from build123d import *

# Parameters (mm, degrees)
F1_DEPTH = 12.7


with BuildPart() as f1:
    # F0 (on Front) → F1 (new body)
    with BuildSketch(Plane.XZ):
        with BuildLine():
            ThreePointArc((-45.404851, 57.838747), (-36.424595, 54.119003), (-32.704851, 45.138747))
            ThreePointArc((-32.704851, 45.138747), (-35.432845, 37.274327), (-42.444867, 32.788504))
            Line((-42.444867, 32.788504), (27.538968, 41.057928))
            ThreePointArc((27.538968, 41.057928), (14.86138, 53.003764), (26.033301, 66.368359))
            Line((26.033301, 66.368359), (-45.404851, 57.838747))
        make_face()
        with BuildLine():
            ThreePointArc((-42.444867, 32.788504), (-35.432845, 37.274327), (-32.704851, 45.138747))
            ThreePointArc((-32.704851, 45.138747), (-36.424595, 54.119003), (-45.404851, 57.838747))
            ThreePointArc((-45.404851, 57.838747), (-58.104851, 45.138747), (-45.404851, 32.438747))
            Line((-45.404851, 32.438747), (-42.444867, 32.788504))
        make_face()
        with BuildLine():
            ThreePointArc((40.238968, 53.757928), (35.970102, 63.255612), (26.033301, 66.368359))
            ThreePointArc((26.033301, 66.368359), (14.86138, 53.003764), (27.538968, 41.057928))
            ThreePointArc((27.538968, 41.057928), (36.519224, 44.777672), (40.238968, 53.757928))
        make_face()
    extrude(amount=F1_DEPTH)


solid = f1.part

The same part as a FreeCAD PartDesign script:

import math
import FreeCAD as App
import Part
import Sketcher
from FreeCAD import Vector
Q = App.Units.Quantity

doc = App.newDocument("Part")
params = doc.addObject("Spreadsheet::Sheet", "Params")
for row, (alias, value) in enumerate([
    ("sketch1_radius", "0.5 in"),
    ("pad1_length", "0.5 in"),
], start=1):
    params.set(f"A{row}", alias)
    params.set(f"B{row}", "=" + value)
    params.setAlias(f"B{row}", alias)

body = doc.addObject("PartDesign::Body", "Body")

sketch1 = doc.addObject("Sketcher::SketchObject", "Sketch")
body.addObject(sketch1)
sketch1.AttachmentSupport = (doc.XZ_Plane, [""])
sketch1.MapMode = "FlatFace"
sketch1.addGeometry(Part.LineSegment(Vector(-42.4, 32.8, 0), Vector(27.5, 41.1, 0)), False)
sketch1.addGeometry(Part.ArcOfCircle(Part.Circle(Vector(27.5, 53.8, 0), Vector(0, 0, 1), 12.7), math.radians(-90), math.radians(0)), False)
sketch1.addGeometry(Part.ArcOfCircle(Part.Circle(Vector(27.5, 53.8, 0), Vector(0, 0, 1), 12.7), math.radians(0), math.radians(97)), False)
sketch1.addGeometry(Part.LineSegment(Vector(26, 66.4, 0), Vector(-45.4, 57.8, 0)), False)
sketch1.addGeometry(Part.ArcOfCircle(Part.Circle(Vector(-45.4, 45.1, 0), Vector(0, 0, 1), 12.7), math.radians(90), math.radians(270)), False)
sketch1.addGeometry(Part.LineSegment(Vector(-45.4, 32.4, 0), Vector(-42.4, 32.8, 0)), False)
sketch1.addConstraint(Sketcher.Constraint("Coincident", 0, 2, 1, 1))
sketch1.addConstraint(Sketcher.Constraint("Tangent", 1, 2, 2, 1))
sketch1.addConstraint(Sketcher.Constraint("Tangent", 2, 2, 3, 1))
sketch1.addConstraint(Sketcher.Constraint("Coincident", 3, 2, 4, 1))
sketch1.addConstraint(Sketcher.Constraint("Coincident", 4, 2, 5, 1))
sketch1.addConstraint(Sketcher.Constraint("Coincident", 5, 2, 0, 1))
sketch1.addConstraint(Sketcher.Constraint("Equal", 1, 2))
sketch1.addConstraint(Sketcher.Constraint("Equal", 2, 4))
sketch1.addConstraint(Sketcher.Constraint("Parallel", 0, 5))
sketch1.addConstraint(Sketcher.Constraint("Horizontal", 2, 3, 1, 2))
sketch1.addConstraint(Sketcher.Constraint("Vertical", 2, 3, 0, 2))
sketch1.addConstraint(Sketcher.Constraint("Vertical", 4, 3, 3, 2))
sketch1.addConstraint(Sketcher.Constraint("Vertical", 3, 2, 4, 2))
sketch1.addConstraint(Sketcher.Constraint("Radius", 1, Q("0.5 in")))
sketch1.addConstraint(Sketcher.Constraint("DistanceX", -1, 1, 2, 2, 26.033301))
sketch1.addConstraint(Sketcher.Constraint("Distance", 3, 71.945562))
sketch1.addConstraint(Sketcher.Constraint("DistanceY", -1, 1, 1, 3, 53.757928))
sketch1.addConstraint(Sketcher.Constraint("DistanceX", -1, 1, 2, 3, 27.53897))
sketch1.addConstraint(Sketcher.Constraint("Distance", 0, 70.470707))
sketch1.setExpression("Constraints[13]", "Params.sketch1_radius")
pad1 = doc.addObject("PartDesign::Pad", "Pad")
body.addObject(pad1)
pad1.Profile = sketch1
pad1.setExpression("Length", "Params.pad1_length")

doc.recompute()
